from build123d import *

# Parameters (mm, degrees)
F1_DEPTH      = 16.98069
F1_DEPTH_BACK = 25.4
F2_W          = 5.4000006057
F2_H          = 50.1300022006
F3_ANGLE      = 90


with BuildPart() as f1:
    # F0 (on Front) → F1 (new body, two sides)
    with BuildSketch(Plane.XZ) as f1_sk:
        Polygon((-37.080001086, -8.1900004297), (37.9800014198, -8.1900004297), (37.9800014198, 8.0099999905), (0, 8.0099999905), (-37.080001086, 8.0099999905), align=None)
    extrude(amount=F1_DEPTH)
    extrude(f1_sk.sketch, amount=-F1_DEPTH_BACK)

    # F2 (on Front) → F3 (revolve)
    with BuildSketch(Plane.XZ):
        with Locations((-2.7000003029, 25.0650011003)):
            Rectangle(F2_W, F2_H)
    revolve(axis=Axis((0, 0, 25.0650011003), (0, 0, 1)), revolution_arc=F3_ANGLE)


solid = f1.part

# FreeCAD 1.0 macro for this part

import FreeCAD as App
import Part
import Sketcher

V = App.Vector

doc = App.newDocument("Part")
body = doc.addObject("PartDesign::Body", "Body")

# Sketch on XZ plane
sketch1 = body.newObject("Sketcher::SketchObject", "Sketch")
sketch1.AttachmentSupport = (doc.getObject("XZ_Plane"), [""])
sketch1.MapMode = "FlatFace"
sketch1.addGeometry(Part.LineSegment(V(-37.080001, -8.19, 0), V(37.980001, -8.19, 0)), False)
sketch1.addGeometry(Part.LineSegment(V(37.980001, -8.19, 0), V(37.980001, 8.01, 0)), False)
sketch1.addGeometry(Part.LineSegment(V(37.980001, 8.01, 0), V(-37.080001, 8.01, 0)), False)
sketch1.addGeometry(Part.LineSegment(V(-37.080001, 8.01, 0), V(-37.080001, -8.19, 0)), False)
sketch1.addConstraint(Sketcher.Constraint("Coincident", 0, 2, 1, 1))
sketch1.addConstraint(Sketcher.Constraint("Coincident", 1, 2, 2, 1))
sketch1.addConstraint(Sketcher.Constraint("Coincident", 2, 2, 3, 1))
sketch1.addConstraint(Sketcher.Constraint("Coincident", 3, 2, 0, 1))
sketch1.addConstraint(Sketcher.Constraint("Horizontal", 0))
sketch1.addConstraint(Sketcher.Constraint("Vertical", 1))
sketch1.addConstraint(Sketcher.Constraint("Horizontal", 2))
sketch1.addConstraint(Sketcher.Constraint("Vertical", 3))
sketch1.addConstraint(Sketcher.Constraint("DistanceY", 1, 1, 1, 2, 16.2))
sketch1.addConstraint(Sketcher.Constraint("DistanceX", -1, 1, 0, 2, 37.980001))
sketch1.addConstraint(Sketcher.Constraint("DistanceY", 0, 2, -1, 1, 8.19))
sketch1.addConstraint(Sketcher.Constraint("DistanceX", 2, 2, -1, 1, 37.080001))
pad1 = body.newObject("PartDesign::Pad", "Pad")
pad1.Profile = sketch1
pad1.Type = "TwoLengths"
pad1.Length = 16.98069
pad1.Length2 = 25.4

# Sketch on XZ plane
sketch2 = body.newObject("Sketcher::SketchObject", "Sketch001")
sketch2.AttachmentSupport = (doc.getObject("XZ_Plane"), [""])
sketch2.MapMode = "FlatFace"
sketch2.addGeometry(Part.LineSegment(V(-5.400001, 50.130002, 0), V(-5.400001, 0, 0)), False)
sketch2.addGeometry(Part.LineSegment(V(-5.400001, 0, 0), V(0, 0, 0)), False)
sketch2.addGeometry(Part.LineSegment(V(0, 0, 0), V(0, 50.130002, 0)), False)
sketch2.addGeometry(Part.LineSegment(V(0, 50.130002, 0), V(-5.400001, 50.130002, 0)), False)
sketch2.addConstraint(Sketcher.Constraint("Coincident", 0, 2, 1, 1))
sketch2.addConstraint(Sketcher.Constraint("Coincident", 1, 2, 2, 1))
sketch2.addConstraint(Sketcher.Constraint("Coincident", 2, 2, 3, 1))
sketch2.addConstraint(Sketcher.Constraint("Coincident", 3, 2, 0, 1))
sketch2.addConstraint(Sketcher.Constraint("Vertical", 0))
sketch2.addConstraint(Sketcher.Constraint("Horizontal", 1))
sketch2.addConstraint(Sketcher.Constraint("Vertical", 2))
sketch2.addConstraint(Sketcher.Constraint("Horizontal", 3))
sketch2.addConstraint(Sketcher.Constraint("Coincident", 1, 2, -1, 1))
sketch2.addConstraint(Sketcher.Constraint("DistanceX", 1, 1, 1, 2, 5.400001))
sketch2.addConstraint(Sketcher.Constraint("DistanceY", 0, 2, 0, 1, 50.130002))
revolution = body.newObject("PartDesign::Revolution", "Revolution")
revolution.Profile = sketch2
revolution.ReferenceAxis = (sketch2, ["V_Axis"])
revolution.Angle = 90

doc.recompute()
